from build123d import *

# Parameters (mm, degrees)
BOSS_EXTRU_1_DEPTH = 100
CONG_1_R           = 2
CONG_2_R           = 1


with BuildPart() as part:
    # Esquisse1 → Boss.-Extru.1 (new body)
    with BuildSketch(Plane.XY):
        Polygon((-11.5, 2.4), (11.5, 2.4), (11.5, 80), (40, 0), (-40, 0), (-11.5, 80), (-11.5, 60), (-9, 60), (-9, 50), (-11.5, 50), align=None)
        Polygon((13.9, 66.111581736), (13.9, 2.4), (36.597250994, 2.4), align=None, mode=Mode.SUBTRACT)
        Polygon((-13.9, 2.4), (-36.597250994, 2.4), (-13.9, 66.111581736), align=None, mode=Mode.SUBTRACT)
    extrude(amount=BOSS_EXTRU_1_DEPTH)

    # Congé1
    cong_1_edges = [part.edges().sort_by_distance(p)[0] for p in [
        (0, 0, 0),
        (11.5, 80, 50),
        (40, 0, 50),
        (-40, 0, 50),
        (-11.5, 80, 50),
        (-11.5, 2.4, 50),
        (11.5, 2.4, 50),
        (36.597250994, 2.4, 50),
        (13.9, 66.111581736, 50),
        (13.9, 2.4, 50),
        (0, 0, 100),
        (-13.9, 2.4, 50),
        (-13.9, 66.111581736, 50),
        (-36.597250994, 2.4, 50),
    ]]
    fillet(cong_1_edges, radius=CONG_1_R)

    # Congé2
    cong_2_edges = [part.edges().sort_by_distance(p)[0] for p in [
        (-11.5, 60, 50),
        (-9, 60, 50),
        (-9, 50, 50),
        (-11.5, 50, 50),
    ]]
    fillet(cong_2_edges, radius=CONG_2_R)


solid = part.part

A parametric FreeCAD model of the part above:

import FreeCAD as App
import Part
import Sketcher
from FreeCAD import Vector
Q = App.Units.Quantity


def edges_at(feature, points):
    """Names of the edges that pass closest to the given points."""
    edges = feature.Shape.Edges
    near = lambda p: min(range(len(edges)), key=lambda i: edges[i].distToShape(Part.Vertex(*p))[0])
    return sorted({f"Edge{near(p) + 1}" for p in points})

doc = App.newDocument("Part")
body = doc.addObject("PartDesign::Body", "Body")

sketch1 = body.newObject("Sketcher::SketchObject", "Sketch")
sketch1.AttachmentSupport = (doc.getObject("XY_Plane"), [""])
sketch1.MapMode = "FlatFace"
sketch1.addGeometry([
    Part.LineSegment(Vector(11.5, 2.4, 0), Vector(-11.5, 2.4, 0)),
    Part.LineSegment(Vector(-11.5, 2.4, 0), Vector(-11.5, 50, 0)),
    Part.LineSegment(Vector(-11.5, 50, 0), Vector(-9, 50, 0)),
    Part.LineSegment(Vector(-9, 50, 0), Vector(-9, 60, 0)),
    Part.LineSegment(Vector(-9, 60, 0), Vector(-11.5, 60, 0)),
    Part.LineSegment(Vector(-11.5, 60, 0), Vector(-11.5, 80, 0)),
    Part.LineSegment(Vector(-11.5, 80, 0), Vector(-40, 0, 0)),
    Part.LineSegment(Vector(-40, 0, 0), Vector(40, 0, 0)),
    Part.LineSegment(Vector(40, 0, 0), Vector(11.5, 80, 0)),
    Part.LineSegment(Vector(11.5, 80, 0), Vector(11.5, 2.4, 0)),
    Part.LineSegment(Vector(13.9, 66.1, 0), Vector(36.6, 2.4, 0)),
    Part.LineSegment(Vector(36.6, 2.4, 0), Vector(13.9, 2.4, 0)),
    Part.LineSegment(Vector(13.9, 2.4, 0), Vector(13.9, 66.1, 0)),
    Part.LineSegment(Vector(-13.9, 2.4, 0), Vector(-36.6, 2.4, 0)),
    Part.LineSegment(Vector(-36.6, 2.4, 0), Vector(-13.9, 66.1, 0)),
    Part.LineSegment(Vector(-13.9, 66.1, 0), Vector(-13.9, 2.4, 0)),
], False)
sketch1.addConstraint([
    Sketcher.Constraint("Coincident", 0, 2, 1, 1),
    Sketcher.Constraint("Coincident", 1, 2, 2, 1),
    Sketcher.Constraint("Coincident", 2, 2, 3, 1),
    Sketcher.Constraint("Coincident", 3, 2, 4, 1),
    Sketcher.Constraint("Coincident", 4, 2, 5, 1),
    Sketcher.Constraint("Coincident", 5, 2, 6, 1),
    Sketcher.Constraint("Coincident", 6, 2, 7, 1),
    Sketcher.Constraint("Coincident", 7, 2, 8, 1),
    Sketcher.Constraint("Coincident", 8, 2, 9, 1),
    Sketcher.Constraint("Coincident", 9, 2, 0, 1),
    Sketcher.Constraint("Coincident", 10, 2, 11, 1),
    Sketcher.Constraint("Coincident", 11, 2, 12, 1),
    Sketcher.Constraint("Coincident", 12, 2, 10, 1),
    Sketcher.Constraint("Coincident", 13, 2, 14, 1),
    Sketcher.Constraint("Coincident", 14, 2, 15, 1),
    Sketcher.Constraint("Coincident", 15, 2, 13, 1),
    Sketcher.Constraint("Horizontal", 0),
    Sketcher.Constraint("Vertical", 1),
    Sketcher.Constraint("Horizontal", 2),
    Sketcher.Constraint("Vertical", 3),
    Sketcher.Constraint("Horizontal", 4),
    Sketcher.Constraint("Vertical", 5),
    Sketcher.Constraint("Horizontal", 7),
    Sketcher.Constraint("Vertical", 9),
    Sketcher.Constraint("Horizontal", 11),
    Sketcher.Constraint("Vertical", 12),
    Sketcher.Constraint("Horizontal", 13),
    Sketcher.Constraint("Vertical", 15),
    Sketcher.Constraint("Symmetric", 6, 2, 7, 2, -1, 1),
    Sketcher.Constraint("Symmetric", 5, 2, 8, 2, -2),
    Sketcher.Constraint("Symmetric", 10, 2, 13, 2, -2),
    Sketcher.Constraint("Symmetric", 12, 2, 14, 2, -2),
    Sketcher.Constraint("Parallel", 8, 10),
    Sketcher.Constraint("Horizontal", 9, 2, 10, 2),
    Sketcher.Constraint("Vertical", 1, 2, 4, 2),
    Sketcher.Constraint("DistanceX", 0, 2, 0, 1, Q("23 mm")),
    Sketcher.Constraint("DistanceX", 7, 1, 7, 2, Q("80 mm")),
    Sketcher.Constraint("DistanceY", 3, 1, 3, 2, Q("10 mm")),
    Sketcher.Constraint("DistanceY", 5, 1, 5, 2, Q("20 mm")),
    Sketcher.Constraint("DistanceX", 2, 1, 2, 2, Q("2.5 mm")),
    Sketcher.Constraint("DistanceY", 1, 1, 1, 2, Q("47.6 mm")),
    Sketcher.Constraint("DistanceY", -1, 1, 1, 2, Q("50 mm")),
    Sketcher.Constraint("DistanceX", -1, 1, 11, 2, Q("13.9 mm")),
    Sketcher.Constraint("Distance", 10, Q("67.6338 mm")),
])
pad1 = body.newObject("PartDesign::Pad", "Pad")
pad1.Profile = sketch1
pad1.Length = 100
doc.recompute()

fillet = body.newObject("PartDesign::Fillet", "Fillet")
fillet.Base = (pad1, edges_at(pad1, [
    (0, 0, 0),
    (11.5, 80, 50),
    (40, 0, 50),
    (-40, 0, 50),
    (-11.5, 80, 50),
    (-11.5, 2.4, 50),
    (11.5, 2.4, 50),
    (36.597, 2.4, 50),
    (13.9, 66.112, 50),
    (13.9, 2.4, 50),
    (0, 0, 100),
    (-13.9, 2.4, 50),
    (-13.9, 66.112, 50),
    (-36.597, 2.4, 50),
]))
fillet.Radius = 2
doc.recompute()

fillet2 = body.newObject("PartDesign::Fillet", "Fillet001")
fillet2.Base = (fillet, edges_at(fillet, [
    (-11.5, 60, 50),
    (-9, 60, 50),
    (-9, 50, 50),
    (-11.5, 50, 50),
]))
fillet2.Radius = 1

doc.recompute()
